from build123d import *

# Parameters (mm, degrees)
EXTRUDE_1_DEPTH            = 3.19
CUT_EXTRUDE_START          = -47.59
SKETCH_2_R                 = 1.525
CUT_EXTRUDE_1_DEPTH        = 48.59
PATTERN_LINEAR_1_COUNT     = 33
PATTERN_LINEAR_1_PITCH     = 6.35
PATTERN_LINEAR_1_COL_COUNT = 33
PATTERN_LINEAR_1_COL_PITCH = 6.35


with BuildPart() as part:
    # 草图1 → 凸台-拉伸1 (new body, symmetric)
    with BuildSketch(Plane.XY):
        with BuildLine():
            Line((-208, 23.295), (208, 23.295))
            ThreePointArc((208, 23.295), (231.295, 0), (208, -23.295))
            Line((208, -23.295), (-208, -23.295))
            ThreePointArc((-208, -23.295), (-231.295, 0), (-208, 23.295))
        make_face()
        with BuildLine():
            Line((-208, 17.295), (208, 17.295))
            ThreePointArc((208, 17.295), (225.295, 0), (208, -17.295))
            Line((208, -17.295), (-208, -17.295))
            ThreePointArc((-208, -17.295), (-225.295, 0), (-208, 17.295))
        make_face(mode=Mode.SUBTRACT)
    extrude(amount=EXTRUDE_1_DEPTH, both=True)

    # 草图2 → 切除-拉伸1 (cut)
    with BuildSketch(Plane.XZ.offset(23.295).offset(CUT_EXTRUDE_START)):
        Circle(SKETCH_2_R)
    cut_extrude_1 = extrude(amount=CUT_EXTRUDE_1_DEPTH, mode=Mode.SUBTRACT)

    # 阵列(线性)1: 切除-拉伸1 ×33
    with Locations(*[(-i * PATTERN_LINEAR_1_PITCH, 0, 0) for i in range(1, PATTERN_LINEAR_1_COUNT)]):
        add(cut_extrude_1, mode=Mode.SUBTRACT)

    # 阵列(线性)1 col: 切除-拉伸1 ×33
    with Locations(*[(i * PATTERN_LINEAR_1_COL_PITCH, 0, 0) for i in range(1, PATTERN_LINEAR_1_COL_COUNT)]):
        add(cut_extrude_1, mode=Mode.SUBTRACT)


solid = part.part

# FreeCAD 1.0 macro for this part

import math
import FreeCAD as App
import Part
import Sketcher
Q = App.Units.Quantity

doc = App.newDocument("Part")
body = doc.addObject("PartDesign::Body", "Body")

# Sketch on XY plane
sketch1 = body.newObject("Sketcher::SketchObject", "Sketch")
sketch1.AttachmentSupport = (doc.getObject("XY_Plane"), [""])
sketch1.MapMode = "FlatFace"
sketch1.addGeometry(Part.LineSegment(App.Vector(208, 23, 0), App.Vector(-208, 23, 0)), False)
sketch1.addGeometry(Part.ArcOfCircle(Part.Circle(App.Vector(-208, 0, 0), App.Vector(0, 0, 1), 23), math.radians(90), math.radians(270)), False)
sketch1.addGeometry(Part.LineSegment(App.Vector(-208, -23, 0), App.Vector(208, -23, 0)), False)
sketch1.addGeometry(Part.ArcOfCircle(Part.Circle(App.Vector(208, 0, 0), App.Vector(0, 0, 1), 23), math.radians(-90), math.radians(90)), False)
sketch1.addGeometry(Part.LineSegment(App.Vector(-208, 17, 0), App.Vector(208, 17, 0)), False)
sketch1.addGeometry(Part.ArcOfCircle(Part.Circle(App.Vector(208, 0, 0), App.Vector(0, 0, 1), 17), math.radians(-90), math.radians(90)), False)
sketch1.addGeometry(Part.LineSegment(App.Vector(208, -17, 0), App.Vector(-208, -17, 0)), False)
sketch1.addGeometry(Part.ArcOfCircle(Part.Circle(App.Vector(-208, 0, 0), App.Vector(0, 0, 1), 17), math.radians(90), math.radians(270)), False)
sketch1.addConstraint(Sketcher.Constraint("Tangent", 0, 2, 1, 1))
sketch1.addConstraint(Sketcher.Constraint("Tangent", 1, 2, 2, 1))
sketch1.addConstraint(Sketcher.Constraint("Tangent", 2, 2, 3, 1))
sketch1.addConstraint(Sketcher.Constraint("Tangent", 3, 2, 0, 1))
sketch1.addConstraint(Sketcher.Constraint("Tangent", 4, 2, 5, 2))
sketch1.addConstraint(Sketcher.Constraint("Tangent", 5, 1, 6, 1))
sketch1.addConstraint(Sketcher.Constraint("Tangent", 6, 2, 7, 2))
sketch1.addConstraint(Sketcher.Constraint("Tangent", 7, 1, 4, 1))
sketch1.addConstraint(Sketcher.Constraint("Horizontal", 0))
sketch1.addConstraint(Sketcher.Constraint("Horizontal", 2))
sketch1.addConstraint(Sketcher.Constraint("Horizontal", 4))
sketch1.addConstraint(Sketcher.Constraint("Horizontal", 6))
sketch1.addConstraint(Sketcher.Constraint("Coincident", 5, 3, 3, 3))
sketch1.addConstraint(Sketcher.Constraint("Symmetric", 1, 3, 3, 3, -1, 1))
sketch1.addConstraint(Sketcher.Constraint("Vertical", 7, 3, 0, 2))
sketch1.addConstraint(Sketcher.Constraint("DistanceX", 0, 2, 0, 1, Q("416 mm")))
sketch1.addConstraint(Sketcher.Constraint("Radius", 1, Q("23.295 mm")))
sketch1.addConstraint(Sketcher.Constraint("Radius", 5, Q("17.295 mm")))
pad1 = body.newObject("PartDesign::Pad", "Pad")
pad1.Profile = sketch1
pad1.Length = 6.38
pad1.Midplane = True

# Sketch on XZ plane
sketch2 = body.newObject("Sketcher::SketchObject", "Sketch001")
sketch2.AttachmentSupport = (doc.getObject("XZ_Plane"), [""])
sketch2.MapMode = "FlatFace"
sketch2.AttachmentOffset = App.Placement(App.Vector(0, 0, -24.295), App.Rotation())
sketch2.addGeometry(Part.Circle(App.Vector(0, 0, 0), App.Vector(0, 0, 1), 1.5), False)
sketch2.addConstraint(Sketcher.Constraint("Coincident", 0, 3, -1, 1))
sketch2.addConstraint(Sketcher.Constraint("Diameter", 0, Q("3.05 mm")))
pocket1 = body.newObject("PartDesign::Pocket", "Pocket")
pocket1.Profile = sketch2
pocket1.Length = 48.59
pocket1.Reversed = True
doc.recompute()

linearpattern = body.newObject("PartDesign::LinearPattern", "LinearPattern")
linearpattern.Originals = [pocket1]
linearpattern.Direction = (doc.getObject("X_Axis"), [""])
linearpattern.Mode = "offset"
linearpattern.Offset = 6.35
linearpattern.Occurrences = 33
linearpattern.Reversed = True
body.Tip = linearpattern
doc.recompute()

linearpattern2 = body.newObject("PartDesign::LinearPattern", "LinearPattern001")
linearpattern2.Originals = [pocket1]
linearpattern2.Direction = (doc.getObject("X_Axis"), [""])
linearpattern2.Mode = "offset"
linearpattern2.Offset = 6.35
linearpattern2.Occurrences = 33
body.Tip = linearpattern2

doc.recompute()
